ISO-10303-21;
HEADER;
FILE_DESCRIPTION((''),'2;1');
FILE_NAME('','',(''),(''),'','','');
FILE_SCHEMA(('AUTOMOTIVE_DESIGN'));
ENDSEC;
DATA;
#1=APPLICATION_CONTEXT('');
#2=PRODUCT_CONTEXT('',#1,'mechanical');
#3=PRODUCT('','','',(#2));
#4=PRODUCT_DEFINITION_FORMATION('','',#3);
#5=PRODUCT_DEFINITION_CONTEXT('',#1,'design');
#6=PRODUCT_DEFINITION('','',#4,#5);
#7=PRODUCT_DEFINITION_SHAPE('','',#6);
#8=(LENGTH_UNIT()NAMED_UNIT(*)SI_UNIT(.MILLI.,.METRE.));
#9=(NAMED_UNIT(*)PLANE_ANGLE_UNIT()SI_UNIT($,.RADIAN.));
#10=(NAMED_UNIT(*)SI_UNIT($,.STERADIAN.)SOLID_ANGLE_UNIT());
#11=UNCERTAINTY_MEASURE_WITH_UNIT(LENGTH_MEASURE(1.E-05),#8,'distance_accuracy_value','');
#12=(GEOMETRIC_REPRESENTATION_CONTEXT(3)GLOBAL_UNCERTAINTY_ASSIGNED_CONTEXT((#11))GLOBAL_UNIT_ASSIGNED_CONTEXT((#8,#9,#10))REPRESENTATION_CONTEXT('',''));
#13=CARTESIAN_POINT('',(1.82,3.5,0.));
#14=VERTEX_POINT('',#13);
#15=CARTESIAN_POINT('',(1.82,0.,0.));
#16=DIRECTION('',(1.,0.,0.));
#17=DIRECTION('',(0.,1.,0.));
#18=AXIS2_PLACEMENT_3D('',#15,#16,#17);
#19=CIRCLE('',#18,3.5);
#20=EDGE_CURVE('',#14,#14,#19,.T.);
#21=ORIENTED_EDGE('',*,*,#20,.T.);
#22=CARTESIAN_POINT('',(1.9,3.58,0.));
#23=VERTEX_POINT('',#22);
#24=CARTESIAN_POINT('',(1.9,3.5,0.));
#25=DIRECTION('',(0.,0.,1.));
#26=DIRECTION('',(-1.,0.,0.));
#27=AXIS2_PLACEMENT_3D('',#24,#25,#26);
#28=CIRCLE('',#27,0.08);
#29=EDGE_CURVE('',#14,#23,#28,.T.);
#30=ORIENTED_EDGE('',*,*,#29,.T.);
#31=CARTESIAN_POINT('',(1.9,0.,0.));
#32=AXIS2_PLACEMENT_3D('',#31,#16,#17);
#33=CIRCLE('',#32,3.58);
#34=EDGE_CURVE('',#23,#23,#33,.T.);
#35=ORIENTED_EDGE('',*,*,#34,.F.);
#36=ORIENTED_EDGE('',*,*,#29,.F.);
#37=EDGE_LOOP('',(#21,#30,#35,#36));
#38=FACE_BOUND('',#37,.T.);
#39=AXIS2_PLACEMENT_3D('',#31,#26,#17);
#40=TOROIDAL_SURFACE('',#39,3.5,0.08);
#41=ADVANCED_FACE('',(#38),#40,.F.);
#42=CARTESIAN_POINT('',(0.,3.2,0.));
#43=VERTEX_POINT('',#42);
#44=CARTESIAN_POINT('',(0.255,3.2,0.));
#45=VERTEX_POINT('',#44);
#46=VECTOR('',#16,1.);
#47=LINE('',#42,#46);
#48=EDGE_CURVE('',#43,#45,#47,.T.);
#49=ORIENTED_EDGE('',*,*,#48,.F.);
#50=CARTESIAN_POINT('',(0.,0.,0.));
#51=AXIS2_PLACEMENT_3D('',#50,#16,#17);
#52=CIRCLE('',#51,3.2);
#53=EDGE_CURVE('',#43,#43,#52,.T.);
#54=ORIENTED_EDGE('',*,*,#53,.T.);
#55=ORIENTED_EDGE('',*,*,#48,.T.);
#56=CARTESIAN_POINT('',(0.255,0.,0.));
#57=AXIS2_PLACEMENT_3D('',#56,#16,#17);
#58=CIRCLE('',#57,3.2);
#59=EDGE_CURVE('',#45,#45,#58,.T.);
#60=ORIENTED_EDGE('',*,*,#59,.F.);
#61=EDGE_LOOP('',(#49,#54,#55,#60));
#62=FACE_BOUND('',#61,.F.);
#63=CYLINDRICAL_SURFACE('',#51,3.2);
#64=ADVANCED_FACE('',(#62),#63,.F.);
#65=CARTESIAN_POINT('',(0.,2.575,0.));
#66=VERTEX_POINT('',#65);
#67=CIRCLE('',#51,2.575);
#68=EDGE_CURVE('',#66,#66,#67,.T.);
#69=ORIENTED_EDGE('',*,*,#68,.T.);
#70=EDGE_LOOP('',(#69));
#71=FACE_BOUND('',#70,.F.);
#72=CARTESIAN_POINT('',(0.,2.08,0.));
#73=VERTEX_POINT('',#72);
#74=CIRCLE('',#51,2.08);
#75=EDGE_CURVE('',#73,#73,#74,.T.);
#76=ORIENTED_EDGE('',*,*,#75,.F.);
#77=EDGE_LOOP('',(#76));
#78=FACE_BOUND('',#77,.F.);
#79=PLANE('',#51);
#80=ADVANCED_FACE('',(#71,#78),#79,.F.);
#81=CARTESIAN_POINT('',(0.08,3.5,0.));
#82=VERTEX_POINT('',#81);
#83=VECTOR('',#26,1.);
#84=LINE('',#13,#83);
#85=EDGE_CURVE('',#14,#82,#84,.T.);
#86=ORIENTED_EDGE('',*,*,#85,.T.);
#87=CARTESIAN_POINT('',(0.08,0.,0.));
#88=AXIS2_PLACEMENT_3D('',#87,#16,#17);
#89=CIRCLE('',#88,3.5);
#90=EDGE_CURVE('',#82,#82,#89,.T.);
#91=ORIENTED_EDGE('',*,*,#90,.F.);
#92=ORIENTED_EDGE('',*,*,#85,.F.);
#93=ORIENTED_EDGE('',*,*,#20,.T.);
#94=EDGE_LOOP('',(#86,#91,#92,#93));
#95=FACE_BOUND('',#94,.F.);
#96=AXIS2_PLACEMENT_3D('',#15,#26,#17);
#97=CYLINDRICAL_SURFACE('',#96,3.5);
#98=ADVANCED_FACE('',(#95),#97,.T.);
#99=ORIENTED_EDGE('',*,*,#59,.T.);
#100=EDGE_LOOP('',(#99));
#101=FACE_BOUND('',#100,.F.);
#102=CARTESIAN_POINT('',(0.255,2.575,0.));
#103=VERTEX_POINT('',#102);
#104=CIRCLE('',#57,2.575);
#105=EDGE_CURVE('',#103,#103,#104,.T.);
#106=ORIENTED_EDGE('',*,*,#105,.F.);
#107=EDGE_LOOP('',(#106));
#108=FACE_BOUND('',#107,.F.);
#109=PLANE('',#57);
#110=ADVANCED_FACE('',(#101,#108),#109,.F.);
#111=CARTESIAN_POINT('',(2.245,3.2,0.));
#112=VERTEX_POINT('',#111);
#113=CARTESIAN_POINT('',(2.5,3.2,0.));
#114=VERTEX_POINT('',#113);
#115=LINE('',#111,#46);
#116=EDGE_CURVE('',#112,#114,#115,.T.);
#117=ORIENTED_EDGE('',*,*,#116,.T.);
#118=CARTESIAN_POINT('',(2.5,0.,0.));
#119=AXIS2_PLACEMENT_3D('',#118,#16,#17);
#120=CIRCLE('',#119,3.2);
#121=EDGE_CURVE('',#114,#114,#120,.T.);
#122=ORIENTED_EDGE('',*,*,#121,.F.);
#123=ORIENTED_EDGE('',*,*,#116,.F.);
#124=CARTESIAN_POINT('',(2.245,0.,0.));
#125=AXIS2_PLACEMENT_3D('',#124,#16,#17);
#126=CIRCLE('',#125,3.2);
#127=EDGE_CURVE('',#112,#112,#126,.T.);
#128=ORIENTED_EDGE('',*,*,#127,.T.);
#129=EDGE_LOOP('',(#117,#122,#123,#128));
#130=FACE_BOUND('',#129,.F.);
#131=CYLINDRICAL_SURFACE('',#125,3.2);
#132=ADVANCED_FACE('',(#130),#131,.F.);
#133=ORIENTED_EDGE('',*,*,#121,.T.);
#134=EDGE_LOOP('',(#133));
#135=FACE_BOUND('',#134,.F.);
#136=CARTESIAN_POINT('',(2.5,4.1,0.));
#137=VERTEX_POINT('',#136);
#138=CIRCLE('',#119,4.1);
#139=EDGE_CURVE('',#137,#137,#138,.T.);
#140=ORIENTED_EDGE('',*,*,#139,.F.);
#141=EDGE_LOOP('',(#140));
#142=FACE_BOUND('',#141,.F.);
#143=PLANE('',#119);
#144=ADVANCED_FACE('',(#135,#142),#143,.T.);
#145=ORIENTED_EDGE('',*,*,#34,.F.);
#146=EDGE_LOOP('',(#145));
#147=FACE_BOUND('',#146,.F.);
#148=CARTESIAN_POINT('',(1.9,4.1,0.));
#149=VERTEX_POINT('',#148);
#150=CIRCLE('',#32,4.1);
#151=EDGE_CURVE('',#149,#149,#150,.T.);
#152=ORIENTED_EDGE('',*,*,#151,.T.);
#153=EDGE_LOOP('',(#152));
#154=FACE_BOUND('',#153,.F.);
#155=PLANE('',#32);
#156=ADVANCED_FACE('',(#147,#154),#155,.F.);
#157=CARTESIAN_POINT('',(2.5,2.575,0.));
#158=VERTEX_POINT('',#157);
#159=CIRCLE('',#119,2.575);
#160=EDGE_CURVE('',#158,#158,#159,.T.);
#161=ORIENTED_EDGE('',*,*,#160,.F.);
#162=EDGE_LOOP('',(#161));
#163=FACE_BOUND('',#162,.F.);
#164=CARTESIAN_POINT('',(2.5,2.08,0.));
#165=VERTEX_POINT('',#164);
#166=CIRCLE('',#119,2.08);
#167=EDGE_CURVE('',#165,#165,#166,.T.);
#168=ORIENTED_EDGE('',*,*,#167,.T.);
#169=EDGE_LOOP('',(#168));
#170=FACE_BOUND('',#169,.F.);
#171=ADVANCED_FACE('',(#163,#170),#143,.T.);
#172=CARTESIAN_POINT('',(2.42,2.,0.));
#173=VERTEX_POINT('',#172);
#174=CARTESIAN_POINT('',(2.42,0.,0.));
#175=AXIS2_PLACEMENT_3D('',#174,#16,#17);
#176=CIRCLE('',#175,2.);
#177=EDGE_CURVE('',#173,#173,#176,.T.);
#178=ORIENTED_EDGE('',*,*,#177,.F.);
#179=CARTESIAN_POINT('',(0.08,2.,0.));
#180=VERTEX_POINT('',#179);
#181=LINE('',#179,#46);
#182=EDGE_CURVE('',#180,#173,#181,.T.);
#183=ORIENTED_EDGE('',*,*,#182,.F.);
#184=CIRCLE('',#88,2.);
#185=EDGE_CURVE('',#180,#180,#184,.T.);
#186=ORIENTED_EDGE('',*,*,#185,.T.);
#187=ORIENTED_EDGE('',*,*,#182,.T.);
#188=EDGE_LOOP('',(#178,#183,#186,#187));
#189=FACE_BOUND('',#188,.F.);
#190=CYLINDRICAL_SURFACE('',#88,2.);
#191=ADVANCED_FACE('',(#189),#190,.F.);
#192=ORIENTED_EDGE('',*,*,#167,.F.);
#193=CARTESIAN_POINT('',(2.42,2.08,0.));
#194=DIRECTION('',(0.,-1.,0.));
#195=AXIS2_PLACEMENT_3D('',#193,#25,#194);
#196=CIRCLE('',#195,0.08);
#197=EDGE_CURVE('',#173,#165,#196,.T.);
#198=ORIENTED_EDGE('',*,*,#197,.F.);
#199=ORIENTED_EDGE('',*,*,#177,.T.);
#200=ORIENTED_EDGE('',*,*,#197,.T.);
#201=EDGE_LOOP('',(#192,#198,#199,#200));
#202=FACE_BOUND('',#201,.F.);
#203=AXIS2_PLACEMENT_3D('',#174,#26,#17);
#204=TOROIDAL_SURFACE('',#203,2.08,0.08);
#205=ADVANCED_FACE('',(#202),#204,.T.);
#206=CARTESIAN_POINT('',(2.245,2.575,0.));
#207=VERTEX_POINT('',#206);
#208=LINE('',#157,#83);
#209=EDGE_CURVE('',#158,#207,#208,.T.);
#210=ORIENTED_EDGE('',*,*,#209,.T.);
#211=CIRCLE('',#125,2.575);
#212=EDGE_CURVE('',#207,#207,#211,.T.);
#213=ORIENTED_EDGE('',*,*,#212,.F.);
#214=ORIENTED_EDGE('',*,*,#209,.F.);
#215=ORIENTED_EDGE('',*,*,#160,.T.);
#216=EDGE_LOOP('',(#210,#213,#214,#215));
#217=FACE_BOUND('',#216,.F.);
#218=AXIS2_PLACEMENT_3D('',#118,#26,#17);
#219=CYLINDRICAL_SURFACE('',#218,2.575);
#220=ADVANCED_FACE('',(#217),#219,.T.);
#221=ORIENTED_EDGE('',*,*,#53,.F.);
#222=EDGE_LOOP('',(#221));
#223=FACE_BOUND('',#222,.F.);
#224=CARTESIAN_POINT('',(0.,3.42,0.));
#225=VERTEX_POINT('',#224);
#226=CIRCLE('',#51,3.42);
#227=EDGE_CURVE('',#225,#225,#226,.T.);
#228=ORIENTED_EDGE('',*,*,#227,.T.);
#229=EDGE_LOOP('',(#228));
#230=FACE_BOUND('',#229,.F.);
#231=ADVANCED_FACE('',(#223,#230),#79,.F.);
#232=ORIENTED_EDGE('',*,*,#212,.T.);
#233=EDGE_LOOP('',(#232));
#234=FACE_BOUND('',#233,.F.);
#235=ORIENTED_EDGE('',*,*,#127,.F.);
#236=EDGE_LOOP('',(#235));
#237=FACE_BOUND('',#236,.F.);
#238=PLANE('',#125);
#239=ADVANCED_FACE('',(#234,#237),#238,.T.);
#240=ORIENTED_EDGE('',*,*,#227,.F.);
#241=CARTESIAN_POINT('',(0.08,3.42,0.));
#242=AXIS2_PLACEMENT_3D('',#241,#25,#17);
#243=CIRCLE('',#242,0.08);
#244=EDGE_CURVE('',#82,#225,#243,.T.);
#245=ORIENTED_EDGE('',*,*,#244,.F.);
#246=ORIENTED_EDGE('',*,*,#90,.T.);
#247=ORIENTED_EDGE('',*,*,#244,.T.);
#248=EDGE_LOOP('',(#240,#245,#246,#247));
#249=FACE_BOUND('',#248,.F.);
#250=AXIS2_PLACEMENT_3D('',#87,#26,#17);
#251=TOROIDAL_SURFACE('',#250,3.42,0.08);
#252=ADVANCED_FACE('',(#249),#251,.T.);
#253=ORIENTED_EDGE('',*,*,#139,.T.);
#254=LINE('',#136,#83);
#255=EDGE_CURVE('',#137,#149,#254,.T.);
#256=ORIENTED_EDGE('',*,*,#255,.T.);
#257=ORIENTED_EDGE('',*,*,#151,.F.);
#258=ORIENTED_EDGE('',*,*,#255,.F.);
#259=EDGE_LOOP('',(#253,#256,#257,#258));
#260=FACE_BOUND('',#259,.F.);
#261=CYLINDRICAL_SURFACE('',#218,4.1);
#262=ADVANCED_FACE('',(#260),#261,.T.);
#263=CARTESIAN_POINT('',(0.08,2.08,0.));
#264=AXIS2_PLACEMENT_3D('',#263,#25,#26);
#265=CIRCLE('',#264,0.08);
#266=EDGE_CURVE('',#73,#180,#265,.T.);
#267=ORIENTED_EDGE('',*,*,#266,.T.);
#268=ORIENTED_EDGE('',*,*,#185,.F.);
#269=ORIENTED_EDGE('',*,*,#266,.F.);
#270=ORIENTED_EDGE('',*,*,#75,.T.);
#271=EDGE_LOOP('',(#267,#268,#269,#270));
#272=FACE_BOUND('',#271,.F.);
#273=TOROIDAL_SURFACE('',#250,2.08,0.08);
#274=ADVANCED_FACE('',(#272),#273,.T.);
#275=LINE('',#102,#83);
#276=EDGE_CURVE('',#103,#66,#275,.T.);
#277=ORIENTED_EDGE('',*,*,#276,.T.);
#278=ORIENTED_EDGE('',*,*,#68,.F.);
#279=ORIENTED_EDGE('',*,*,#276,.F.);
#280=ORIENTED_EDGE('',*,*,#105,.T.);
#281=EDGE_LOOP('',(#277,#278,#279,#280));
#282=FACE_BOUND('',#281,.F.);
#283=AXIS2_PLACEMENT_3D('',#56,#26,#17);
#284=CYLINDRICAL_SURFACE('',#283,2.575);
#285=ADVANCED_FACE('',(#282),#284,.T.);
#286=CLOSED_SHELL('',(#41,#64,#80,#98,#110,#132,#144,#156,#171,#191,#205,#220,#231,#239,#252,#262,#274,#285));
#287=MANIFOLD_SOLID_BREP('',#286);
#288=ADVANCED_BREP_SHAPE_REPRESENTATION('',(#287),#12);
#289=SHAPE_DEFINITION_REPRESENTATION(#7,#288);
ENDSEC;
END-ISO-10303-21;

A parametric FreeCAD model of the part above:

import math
import FreeCAD as App
import Part
import Sketcher

V = App.Vector
Q = App.Units.Quantity

doc = App.newDocument("Part")
body = doc.addObject("PartDesign::Body", "Body")

# Sketch on XY plane
sketch1 = body.newObject("Sketcher::SketchObject", "Sketch")
sketch1.AttachmentSupport = (doc.getObject("XY_Plane"), [""])
sketch1.MapMode = "FlatFace"
sketch1.addGeometry(Part.LineSegment(V(0, 2.58, 0), V(0, 2.08, 0)), False)
sketch1.addGeometry(Part.ArcOfCircle(Part.Circle(V(0.08, 2.08, 0), V(0, 0, 1), 0.08), math.radians(180), math.radians(270)), False)
sketch1.addGeometry(Part.LineSegment(V(0.08, 2, 0), V(2.42, 2, 0)), False)
sketch1.addGeometry(Part.ArcOfCircle(Part.Circle(V(2.42, 2.08, 0), V(0, 0, 1), 0.08), math.radians(-90), math.radians(0)), False)
sketch1.addGeometry(Part.LineSegment(V(2.5, 2.08, 0), V(2.5, 2.58, 0)), False)
sketch1.addGeometry(Part.LineSegment(V(2.5, 2.58, 0), V(2.25, 2.58, 0)), False)
sketch1.addGeometry(Part.LineSegment(V(2.25, 2.58, 0), V(2.25, 3.2, 0)), False)
sketch1.addGeometry(Part.LineSegment(V(2.25, 3.2, 0), V(2.5, 3.2, 0)), False)
sketch1.addGeometry(Part.LineSegment(V(2.5, 3.2, 0), V(2.5, 4.1, 0)), False)
sketch1.addGeometry(Part.LineSegment(V(2.5, 4.1, 0), V(1.9, 4.1, 0)), False)
sketch1.addGeometry(Part.LineSegment(V(1.9, 4.1, 0), V(1.9, 3.58, 0)), False)
sketch1.addGeometry(Part.ArcOfCircle(Part.Circle(V(1.9, 3.5, 0), V(0, 0, 1), 0.08), math.radians(180), math.radians(450)), False)
sketch1.addGeometry(Part.LineSegment(V(1.82, 3.5, 0), V(0.08, 3.5, 0)), False)
sketch1.addGeometry(Part.ArcOfCircle(Part.Circle(V(0.08, 3.42, 0), V(0, 0, 1), 0.08), math.radians(90), math.radians(180)), False)
sketch1.addGeometry(Part.LineSegment(V(0, 3.42, 0), V(0, 3.2, 0)), False)
sketch1.addGeometry(Part.LineSegment(V(0, 3.2, 0), V(0.26, 3.2, 0)), False)
sketch1.addGeometry(Part.LineSegment(V(0.26, 3.2, 0), V(0.26, 2.58, 0)), False)
sketch1.addGeometry(Part.LineSegment(V(0.26, 2.58, 0), V(0, 2.58, 0)), False)
sketch1.addConstraint(Sketcher.Constraint("Tangent", 0, 2, 1, 1))
sketch1.addConstraint(Sketcher.Constraint("Tangent", 1, 2, 2, 1))
sketch1.addConstraint(Sketcher.Constraint("Tangent", 2, 2, 3, 1))
sketch1.addConstraint(Sketcher.Constraint("Tangent", 3, 2, 4, 1))
sketch1.addConstraint(Sketcher.Constraint("Coincident", 4, 2, 5, 1))
sketch1.addConstraint(Sketcher.Constraint("Coincident", 5, 2, 6, 1))
sketch1.addConstraint(Sketcher.Constraint("Coincident", 6, 2, 7, 1))
sketch1.addConstraint(Sketcher.Constraint("Coincident", 7, 2, 8, 1))
sketch1.addConstraint(Sketcher.Constraint("Coincident", 8, 2, 9, 1))
sketch1.addConstraint(Sketcher.Constraint("Coincident", 9, 2, 10, 1))
sketch1.addConstraint(Sketcher.Constraint("Coincident", 10, 2, 11, 2))
sketch1.addConstraint(Sketcher.Constraint("Coincident", 11, 1, 12, 1))
sketch1.addConstraint(Sketcher.Constraint("Tangent", 12, 2, 13, 1))
sketch1.addConstraint(Sketcher.Constraint("Tangent", 13, 2, 14, 1))
sketch1.addConstraint(Sketcher.Constraint("Coincident", 14, 2, 15, 1))
sketch1.addConstraint(Sketcher.Constraint("Coincident", 15, 2, 16, 1))
sketch1.addConstraint(Sketcher.Constraint("Coincident", 16, 2, 17, 1))
sketch1.addConstraint(Sketcher.Constraint("Coincident", 17, 2, 0, 1))
sketch1.addConstraint(Sketcher.Constraint("Vertical", 0))
sketch1.addConstraint(Sketcher.Constraint("Horizontal", 2))
sketch1.addConstraint(Sketcher.Constraint("Vertical", 4))
sketch1.addConstraint(Sketcher.Constraint("Horizontal", 5))
sketch1.addConstraint(Sketcher.Constraint("Vertical", 6))
sketch1.addConstraint(Sketcher.Constraint("Horizontal", 7))
sketch1.addConstraint(Sketcher.Constraint("Vertical", 8))
sketch1.addConstraint(Sketcher.Constraint("Horizontal", 9))
sketch1.addConstraint(Sketcher.Constraint("Vertical", 10))
sketch1.addConstraint(Sketcher.Constraint("Horizontal", 12))
sketch1.addConstraint(Sketcher.Constraint("Vertical", 14))
sketch1.addConstraint(Sketcher.Constraint("Horizontal", 15))
sketch1.addConstraint(Sketcher.Constraint("Vertical", 16))
sketch1.addConstraint(Sketcher.Constraint("Horizontal", 17))
sketch1.addConstraint(Sketcher.Constraint("Equal", 1, 3))
sketch1.addConstraint(Sketcher.Constraint("Equal", 3, 11))
sketch1.addConstraint(Sketcher.Constraint("Equal", 11, 13))
sketch1.addConstraint(Sketcher.Constraint("PointOnObject", 0, 2, -2))
sketch1.addConstraint(Sketcher.Constraint("PointOnObject", 13, 2, -2))
sketch1.addConstraint(Sketcher.Constraint("Horizontal", 7, 2, 14, 2))
sketch1.addConstraint(Sketcher.Constraint("Horizontal", 5, 2, 16, 2))
sketch1.addConstraint(Sketcher.Constraint("Vertical", 4, 2, 7, 2))
sketch1.addConstraint(Sketcher.Constraint("Vertical", 11, 3, 9, 2))
sketch1.addConstraint(Sketcher.Constraint("Equal", 7, 15))
sketch1.addConstraint(Sketcher.Constraint("Radius", 1, Q("0.08 mm")))
sketch1.addConstraint(Sketcher.Constraint("DistanceX", 9, 2, 9, 1, Q("0.6 mm")))
sketch1.addConstraint(Sketcher.Constraint("DistanceY", 8, 1, 8, 2, Q("0.9 mm")))
sketch1.addConstraint(Sketcher.Constraint("DistanceY", -1, 1, 1, 2, Q("2 mm")))
sketch1.addConstraint(Sketcher.Constraint("DistanceX", 2, 1, 2, 2, Q("2.34 mm")))
sketch1.addConstraint(Sketcher.Constraint("DistanceY", 10, 2, 10, 1, Q("0.52 mm")))
sketch1.addConstraint(Sketcher.Constraint("DistanceY", 14, 2, 14, 1, Q("0.22 mm")))
sketch1.addConstraint(Sketcher.Constraint("DistanceY", -1, 1, 11, 3, Q("3.5 mm")))
sketch1.addConstraint(Sketcher.Constraint("DistanceX", 5, 2, 5, 1, Q("0.255 mm")))
sketch1.addConstraint(Sketcher.Constraint("DistanceY", 0, 2, 0, 1, Q("0.495 mm")))
revolution = body.newObject("PartDesign::Revolution", "Revolution")
revolution.Profile = sketch1
revolution.ReferenceAxis = (sketch1, ["H_Axis"])
revolution.Angle = 360

doc.recompute()
